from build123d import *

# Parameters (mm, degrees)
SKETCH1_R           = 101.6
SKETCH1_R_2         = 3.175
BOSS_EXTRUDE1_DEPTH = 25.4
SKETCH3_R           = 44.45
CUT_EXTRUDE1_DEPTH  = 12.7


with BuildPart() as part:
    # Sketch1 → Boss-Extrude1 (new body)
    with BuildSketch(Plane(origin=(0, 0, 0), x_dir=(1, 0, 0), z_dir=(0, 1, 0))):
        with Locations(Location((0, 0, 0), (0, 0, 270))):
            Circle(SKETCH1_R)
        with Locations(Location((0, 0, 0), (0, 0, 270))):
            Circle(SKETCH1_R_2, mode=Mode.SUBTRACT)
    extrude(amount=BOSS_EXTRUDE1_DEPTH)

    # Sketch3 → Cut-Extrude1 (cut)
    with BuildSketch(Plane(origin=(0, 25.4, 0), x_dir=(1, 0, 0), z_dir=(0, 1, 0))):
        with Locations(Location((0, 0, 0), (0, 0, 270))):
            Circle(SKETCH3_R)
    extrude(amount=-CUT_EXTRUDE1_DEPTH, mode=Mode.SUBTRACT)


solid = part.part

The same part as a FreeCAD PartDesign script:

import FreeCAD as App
import Part
import Sketcher
from FreeCAD import Vector
Q = App.Units.Quantity

doc = App.newDocument("Part")
params = doc.addObject("Spreadsheet::Sheet", "Params")
for row, (alias, value) in enumerate([
    ("sketch1_diameter", "8 in"),
    ("sketch1_diameter2", "0.25 in"),
    ("pad1_length", "1 in"),
    ("sketch2_diameter", "3.5 in"),
    ("pocket1_length", "0.5 in"),
], start=1):
    params.set(f"A{row}", alias)
    params.set(f"B{row}", "=" + value)
    params.setAlias(f"B{row}", alias)

body = doc.addObject("PartDesign::Body", "Body")

# Sketch on XZ plane
sketch1 = body.newObject("Sketcher::SketchObject", "Sketch")
sketch1.AttachmentSupport = (doc.getObject("XZ_Plane"), [""])
sketch1.MapMode = "FlatFace"
sketch1.addGeometry([
    Part.Circle(Vector(0, 0, 0), Vector(0, 0, 1), 101.6),
    Part.Circle(Vector(0, 0, 0), Vector(0, 0, 1), 3.2),
], False)
sketch1.addConstraint([
    Sketcher.Constraint("Coincident", 0, 3, -1, 1),
    Sketcher.Constraint("Coincident", 1, 3, -1, 1),
    Sketcher.Constraint("Diameter", 0, Q("8 in")),
    Sketcher.Constraint("Diameter", 1, Q("0.25 in")),
])
sketch1.setExpression("Constraints[2]", "Params.sketch1_diameter")
sketch1.setExpression("Constraints[3]", "Params.sketch1_diameter2")
pad1 = body.newObject("PartDesign::Pad", "Pad")
pad1.Profile = sketch1
pad1.setExpression("Length", "Params.pad1_length")
pad1.Reversed = True

# Sketch on XZ plane
sketch2 = body.newObject("Sketcher::SketchObject", "Sketch001")
sketch2.AttachmentSupport = (doc.getObject("XZ_Plane"), [""])
sketch2.MapMode = "FlatFace"
sketch2.AttachmentOffset = App.Placement(Vector(0, 0, -1 * 25.4), App.Rotation())
sketch2.addGeometry(Part.Circle(Vector(0, 0, 0), Vector(0, 0, 1), 44), False)
sketch2.addConstraint([
    Sketcher.Constraint("Coincident", 0, 3, -1, 1),
    Sketcher.Constraint("Diameter", 0, Q("3.5 in")),
])
sketch2.setExpression("Constraints[1]", "Params.sketch2_diameter")
pocket1 = body.newObject("PartDesign::Pocket", "Pocket")
pocket1.Profile = sketch2
pocket1.setExpression("Length", "Params.pocket1_length")
pocket1.Reversed = True

doc.recompute()
